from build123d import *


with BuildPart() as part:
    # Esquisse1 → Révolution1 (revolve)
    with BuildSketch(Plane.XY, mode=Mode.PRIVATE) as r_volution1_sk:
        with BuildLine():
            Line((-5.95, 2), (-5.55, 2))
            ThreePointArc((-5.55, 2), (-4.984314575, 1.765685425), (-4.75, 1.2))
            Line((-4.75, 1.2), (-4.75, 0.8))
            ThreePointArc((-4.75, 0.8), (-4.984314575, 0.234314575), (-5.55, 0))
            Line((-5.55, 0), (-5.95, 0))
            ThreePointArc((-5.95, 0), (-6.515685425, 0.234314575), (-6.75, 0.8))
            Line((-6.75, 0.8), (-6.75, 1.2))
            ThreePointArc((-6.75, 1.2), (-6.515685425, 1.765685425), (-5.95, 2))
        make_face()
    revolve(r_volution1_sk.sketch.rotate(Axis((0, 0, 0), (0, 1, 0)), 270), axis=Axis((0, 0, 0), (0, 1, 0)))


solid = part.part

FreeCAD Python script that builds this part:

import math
import FreeCAD as App
import Part
import Sketcher
from FreeCAD import Vector
Q = App.Units.Quantity

doc = App.newDocument("Part")
body = doc.addObject("PartDesign::Body", "Body")

sketch1 = doc.addObject("Sketcher::SketchObject", "Sketch")
body.addObject(sketch1)
sketch1.AttachmentSupport = (doc.XY_Plane, [""])
sketch1.MapMode = "FlatFace"
sketch1.addGeometry(Part.LineSegment(Vector(-5.55, 2, 0), Vector(-5.95, 2, 0)), False)
sketch1.addGeometry(Part.ArcOfCircle(Part.Circle(Vector(-5.95, 1.2, 0), Vector(0, 0, 1), 0.8), math.radians(90), math.radians(180)), False)
sketch1.addGeometry(Part.LineSegment(Vector(-6.75, 1.2, 0), Vector(-6.75, 0.8, 0)), False)
sketch1.addGeometry(Part.ArcOfCircle(Part.Circle(Vector(-5.95, 0.8, 0), Vector(0, 0, 1), 0.8), math.radians(180), math.radians(270)), False)
sketch1.addGeometry(Part.LineSegment(Vector(-5.95, 0, 0), Vector(-5.55, 0, 0)), False)
sketch1.addGeometry(Part.ArcOfCircle(Part.Circle(Vector(-5.55, 0.8, 0), Vector(0, 0, 1), 0.8), math.radians(-90), math.radians(0)), False)
sketch1.addGeometry(Part.LineSegment(Vector(-4.75, 0.8, 0), Vector(-4.75, 1.2, 0)), False)
sketch1.addGeometry(Part.ArcOfCircle(Part.Circle(Vector(-5.55, 1.2, 0), Vector(0, 0, 1), 0.8), math.radians(0), math.radians(90)), False)
sketch1.addConstraint(Sketcher.Constraint("Tangent", 0, 2, 1, 1))
sketch1.addConstraint(Sketcher.Constraint("Tangent", 1, 2, 2, 1))
sketch1.addConstraint(Sketcher.Constraint("Tangent", 2, 2, 3, 1))
sketch1.addConstraint(Sketcher.Constraint("Tangent", 3, 2, 4, 1))
sketch1.addConstraint(Sketcher.Constraint("Tangent", 4, 2, 5, 1))
sketch1.addConstraint(Sketcher.Constraint("Tangent", 5, 2, 6, 1))
sketch1.addConstraint(Sketcher.Constraint("Tangent", 6, 2, 7, 1))
sketch1.addConstraint(Sketcher.Constraint("Tangent", 7, 2, 0, 1))
sketch1.addConstraint(Sketcher.Constraint("Horizontal", 0))
sketch1.addConstraint(Sketcher.Constraint("Vertical", 2))
sketch1.addConstraint(Sketcher.Constraint("Horizontal", 4))
sketch1.addConstraint(Sketcher.Constraint("Vertical", 6))
sketch1.addConstraint(Sketcher.Constraint("Equal", 1, 3))
sketch1.addConstraint(Sketcher.Constraint("Equal", 3, 5))
sketch1.addConstraint(Sketcher.Constraint("Equal", 5, 7))
sketch1.addConstraint(Sketcher.Constraint("PointOnObject", 3, 2, -1))
sketch1.addConstraint(Sketcher.Constraint("Equal", 4, 2))
sketch1.addConstraint(Sketcher.Constraint("Radius", 1, Q("0.8 mm")))
sketch1.addConstraint(Sketcher.Constraint("DistanceX", 0, 2, 0, 1, Q("0.4 mm")))
sketch1.addConstraint(Sketcher.Constraint("DistanceX", 1, 3, -1, 1, Q("5.95 mm")))
revolution = doc.addObject("PartDesign::Revolution", "Revolution")
body.addObject(revolution)
revolution.Profile = sketch1
revolution.ReferenceAxis = (sketch1, ["V_Axis"])
revolution.Angle = 360

doc.recompute()
